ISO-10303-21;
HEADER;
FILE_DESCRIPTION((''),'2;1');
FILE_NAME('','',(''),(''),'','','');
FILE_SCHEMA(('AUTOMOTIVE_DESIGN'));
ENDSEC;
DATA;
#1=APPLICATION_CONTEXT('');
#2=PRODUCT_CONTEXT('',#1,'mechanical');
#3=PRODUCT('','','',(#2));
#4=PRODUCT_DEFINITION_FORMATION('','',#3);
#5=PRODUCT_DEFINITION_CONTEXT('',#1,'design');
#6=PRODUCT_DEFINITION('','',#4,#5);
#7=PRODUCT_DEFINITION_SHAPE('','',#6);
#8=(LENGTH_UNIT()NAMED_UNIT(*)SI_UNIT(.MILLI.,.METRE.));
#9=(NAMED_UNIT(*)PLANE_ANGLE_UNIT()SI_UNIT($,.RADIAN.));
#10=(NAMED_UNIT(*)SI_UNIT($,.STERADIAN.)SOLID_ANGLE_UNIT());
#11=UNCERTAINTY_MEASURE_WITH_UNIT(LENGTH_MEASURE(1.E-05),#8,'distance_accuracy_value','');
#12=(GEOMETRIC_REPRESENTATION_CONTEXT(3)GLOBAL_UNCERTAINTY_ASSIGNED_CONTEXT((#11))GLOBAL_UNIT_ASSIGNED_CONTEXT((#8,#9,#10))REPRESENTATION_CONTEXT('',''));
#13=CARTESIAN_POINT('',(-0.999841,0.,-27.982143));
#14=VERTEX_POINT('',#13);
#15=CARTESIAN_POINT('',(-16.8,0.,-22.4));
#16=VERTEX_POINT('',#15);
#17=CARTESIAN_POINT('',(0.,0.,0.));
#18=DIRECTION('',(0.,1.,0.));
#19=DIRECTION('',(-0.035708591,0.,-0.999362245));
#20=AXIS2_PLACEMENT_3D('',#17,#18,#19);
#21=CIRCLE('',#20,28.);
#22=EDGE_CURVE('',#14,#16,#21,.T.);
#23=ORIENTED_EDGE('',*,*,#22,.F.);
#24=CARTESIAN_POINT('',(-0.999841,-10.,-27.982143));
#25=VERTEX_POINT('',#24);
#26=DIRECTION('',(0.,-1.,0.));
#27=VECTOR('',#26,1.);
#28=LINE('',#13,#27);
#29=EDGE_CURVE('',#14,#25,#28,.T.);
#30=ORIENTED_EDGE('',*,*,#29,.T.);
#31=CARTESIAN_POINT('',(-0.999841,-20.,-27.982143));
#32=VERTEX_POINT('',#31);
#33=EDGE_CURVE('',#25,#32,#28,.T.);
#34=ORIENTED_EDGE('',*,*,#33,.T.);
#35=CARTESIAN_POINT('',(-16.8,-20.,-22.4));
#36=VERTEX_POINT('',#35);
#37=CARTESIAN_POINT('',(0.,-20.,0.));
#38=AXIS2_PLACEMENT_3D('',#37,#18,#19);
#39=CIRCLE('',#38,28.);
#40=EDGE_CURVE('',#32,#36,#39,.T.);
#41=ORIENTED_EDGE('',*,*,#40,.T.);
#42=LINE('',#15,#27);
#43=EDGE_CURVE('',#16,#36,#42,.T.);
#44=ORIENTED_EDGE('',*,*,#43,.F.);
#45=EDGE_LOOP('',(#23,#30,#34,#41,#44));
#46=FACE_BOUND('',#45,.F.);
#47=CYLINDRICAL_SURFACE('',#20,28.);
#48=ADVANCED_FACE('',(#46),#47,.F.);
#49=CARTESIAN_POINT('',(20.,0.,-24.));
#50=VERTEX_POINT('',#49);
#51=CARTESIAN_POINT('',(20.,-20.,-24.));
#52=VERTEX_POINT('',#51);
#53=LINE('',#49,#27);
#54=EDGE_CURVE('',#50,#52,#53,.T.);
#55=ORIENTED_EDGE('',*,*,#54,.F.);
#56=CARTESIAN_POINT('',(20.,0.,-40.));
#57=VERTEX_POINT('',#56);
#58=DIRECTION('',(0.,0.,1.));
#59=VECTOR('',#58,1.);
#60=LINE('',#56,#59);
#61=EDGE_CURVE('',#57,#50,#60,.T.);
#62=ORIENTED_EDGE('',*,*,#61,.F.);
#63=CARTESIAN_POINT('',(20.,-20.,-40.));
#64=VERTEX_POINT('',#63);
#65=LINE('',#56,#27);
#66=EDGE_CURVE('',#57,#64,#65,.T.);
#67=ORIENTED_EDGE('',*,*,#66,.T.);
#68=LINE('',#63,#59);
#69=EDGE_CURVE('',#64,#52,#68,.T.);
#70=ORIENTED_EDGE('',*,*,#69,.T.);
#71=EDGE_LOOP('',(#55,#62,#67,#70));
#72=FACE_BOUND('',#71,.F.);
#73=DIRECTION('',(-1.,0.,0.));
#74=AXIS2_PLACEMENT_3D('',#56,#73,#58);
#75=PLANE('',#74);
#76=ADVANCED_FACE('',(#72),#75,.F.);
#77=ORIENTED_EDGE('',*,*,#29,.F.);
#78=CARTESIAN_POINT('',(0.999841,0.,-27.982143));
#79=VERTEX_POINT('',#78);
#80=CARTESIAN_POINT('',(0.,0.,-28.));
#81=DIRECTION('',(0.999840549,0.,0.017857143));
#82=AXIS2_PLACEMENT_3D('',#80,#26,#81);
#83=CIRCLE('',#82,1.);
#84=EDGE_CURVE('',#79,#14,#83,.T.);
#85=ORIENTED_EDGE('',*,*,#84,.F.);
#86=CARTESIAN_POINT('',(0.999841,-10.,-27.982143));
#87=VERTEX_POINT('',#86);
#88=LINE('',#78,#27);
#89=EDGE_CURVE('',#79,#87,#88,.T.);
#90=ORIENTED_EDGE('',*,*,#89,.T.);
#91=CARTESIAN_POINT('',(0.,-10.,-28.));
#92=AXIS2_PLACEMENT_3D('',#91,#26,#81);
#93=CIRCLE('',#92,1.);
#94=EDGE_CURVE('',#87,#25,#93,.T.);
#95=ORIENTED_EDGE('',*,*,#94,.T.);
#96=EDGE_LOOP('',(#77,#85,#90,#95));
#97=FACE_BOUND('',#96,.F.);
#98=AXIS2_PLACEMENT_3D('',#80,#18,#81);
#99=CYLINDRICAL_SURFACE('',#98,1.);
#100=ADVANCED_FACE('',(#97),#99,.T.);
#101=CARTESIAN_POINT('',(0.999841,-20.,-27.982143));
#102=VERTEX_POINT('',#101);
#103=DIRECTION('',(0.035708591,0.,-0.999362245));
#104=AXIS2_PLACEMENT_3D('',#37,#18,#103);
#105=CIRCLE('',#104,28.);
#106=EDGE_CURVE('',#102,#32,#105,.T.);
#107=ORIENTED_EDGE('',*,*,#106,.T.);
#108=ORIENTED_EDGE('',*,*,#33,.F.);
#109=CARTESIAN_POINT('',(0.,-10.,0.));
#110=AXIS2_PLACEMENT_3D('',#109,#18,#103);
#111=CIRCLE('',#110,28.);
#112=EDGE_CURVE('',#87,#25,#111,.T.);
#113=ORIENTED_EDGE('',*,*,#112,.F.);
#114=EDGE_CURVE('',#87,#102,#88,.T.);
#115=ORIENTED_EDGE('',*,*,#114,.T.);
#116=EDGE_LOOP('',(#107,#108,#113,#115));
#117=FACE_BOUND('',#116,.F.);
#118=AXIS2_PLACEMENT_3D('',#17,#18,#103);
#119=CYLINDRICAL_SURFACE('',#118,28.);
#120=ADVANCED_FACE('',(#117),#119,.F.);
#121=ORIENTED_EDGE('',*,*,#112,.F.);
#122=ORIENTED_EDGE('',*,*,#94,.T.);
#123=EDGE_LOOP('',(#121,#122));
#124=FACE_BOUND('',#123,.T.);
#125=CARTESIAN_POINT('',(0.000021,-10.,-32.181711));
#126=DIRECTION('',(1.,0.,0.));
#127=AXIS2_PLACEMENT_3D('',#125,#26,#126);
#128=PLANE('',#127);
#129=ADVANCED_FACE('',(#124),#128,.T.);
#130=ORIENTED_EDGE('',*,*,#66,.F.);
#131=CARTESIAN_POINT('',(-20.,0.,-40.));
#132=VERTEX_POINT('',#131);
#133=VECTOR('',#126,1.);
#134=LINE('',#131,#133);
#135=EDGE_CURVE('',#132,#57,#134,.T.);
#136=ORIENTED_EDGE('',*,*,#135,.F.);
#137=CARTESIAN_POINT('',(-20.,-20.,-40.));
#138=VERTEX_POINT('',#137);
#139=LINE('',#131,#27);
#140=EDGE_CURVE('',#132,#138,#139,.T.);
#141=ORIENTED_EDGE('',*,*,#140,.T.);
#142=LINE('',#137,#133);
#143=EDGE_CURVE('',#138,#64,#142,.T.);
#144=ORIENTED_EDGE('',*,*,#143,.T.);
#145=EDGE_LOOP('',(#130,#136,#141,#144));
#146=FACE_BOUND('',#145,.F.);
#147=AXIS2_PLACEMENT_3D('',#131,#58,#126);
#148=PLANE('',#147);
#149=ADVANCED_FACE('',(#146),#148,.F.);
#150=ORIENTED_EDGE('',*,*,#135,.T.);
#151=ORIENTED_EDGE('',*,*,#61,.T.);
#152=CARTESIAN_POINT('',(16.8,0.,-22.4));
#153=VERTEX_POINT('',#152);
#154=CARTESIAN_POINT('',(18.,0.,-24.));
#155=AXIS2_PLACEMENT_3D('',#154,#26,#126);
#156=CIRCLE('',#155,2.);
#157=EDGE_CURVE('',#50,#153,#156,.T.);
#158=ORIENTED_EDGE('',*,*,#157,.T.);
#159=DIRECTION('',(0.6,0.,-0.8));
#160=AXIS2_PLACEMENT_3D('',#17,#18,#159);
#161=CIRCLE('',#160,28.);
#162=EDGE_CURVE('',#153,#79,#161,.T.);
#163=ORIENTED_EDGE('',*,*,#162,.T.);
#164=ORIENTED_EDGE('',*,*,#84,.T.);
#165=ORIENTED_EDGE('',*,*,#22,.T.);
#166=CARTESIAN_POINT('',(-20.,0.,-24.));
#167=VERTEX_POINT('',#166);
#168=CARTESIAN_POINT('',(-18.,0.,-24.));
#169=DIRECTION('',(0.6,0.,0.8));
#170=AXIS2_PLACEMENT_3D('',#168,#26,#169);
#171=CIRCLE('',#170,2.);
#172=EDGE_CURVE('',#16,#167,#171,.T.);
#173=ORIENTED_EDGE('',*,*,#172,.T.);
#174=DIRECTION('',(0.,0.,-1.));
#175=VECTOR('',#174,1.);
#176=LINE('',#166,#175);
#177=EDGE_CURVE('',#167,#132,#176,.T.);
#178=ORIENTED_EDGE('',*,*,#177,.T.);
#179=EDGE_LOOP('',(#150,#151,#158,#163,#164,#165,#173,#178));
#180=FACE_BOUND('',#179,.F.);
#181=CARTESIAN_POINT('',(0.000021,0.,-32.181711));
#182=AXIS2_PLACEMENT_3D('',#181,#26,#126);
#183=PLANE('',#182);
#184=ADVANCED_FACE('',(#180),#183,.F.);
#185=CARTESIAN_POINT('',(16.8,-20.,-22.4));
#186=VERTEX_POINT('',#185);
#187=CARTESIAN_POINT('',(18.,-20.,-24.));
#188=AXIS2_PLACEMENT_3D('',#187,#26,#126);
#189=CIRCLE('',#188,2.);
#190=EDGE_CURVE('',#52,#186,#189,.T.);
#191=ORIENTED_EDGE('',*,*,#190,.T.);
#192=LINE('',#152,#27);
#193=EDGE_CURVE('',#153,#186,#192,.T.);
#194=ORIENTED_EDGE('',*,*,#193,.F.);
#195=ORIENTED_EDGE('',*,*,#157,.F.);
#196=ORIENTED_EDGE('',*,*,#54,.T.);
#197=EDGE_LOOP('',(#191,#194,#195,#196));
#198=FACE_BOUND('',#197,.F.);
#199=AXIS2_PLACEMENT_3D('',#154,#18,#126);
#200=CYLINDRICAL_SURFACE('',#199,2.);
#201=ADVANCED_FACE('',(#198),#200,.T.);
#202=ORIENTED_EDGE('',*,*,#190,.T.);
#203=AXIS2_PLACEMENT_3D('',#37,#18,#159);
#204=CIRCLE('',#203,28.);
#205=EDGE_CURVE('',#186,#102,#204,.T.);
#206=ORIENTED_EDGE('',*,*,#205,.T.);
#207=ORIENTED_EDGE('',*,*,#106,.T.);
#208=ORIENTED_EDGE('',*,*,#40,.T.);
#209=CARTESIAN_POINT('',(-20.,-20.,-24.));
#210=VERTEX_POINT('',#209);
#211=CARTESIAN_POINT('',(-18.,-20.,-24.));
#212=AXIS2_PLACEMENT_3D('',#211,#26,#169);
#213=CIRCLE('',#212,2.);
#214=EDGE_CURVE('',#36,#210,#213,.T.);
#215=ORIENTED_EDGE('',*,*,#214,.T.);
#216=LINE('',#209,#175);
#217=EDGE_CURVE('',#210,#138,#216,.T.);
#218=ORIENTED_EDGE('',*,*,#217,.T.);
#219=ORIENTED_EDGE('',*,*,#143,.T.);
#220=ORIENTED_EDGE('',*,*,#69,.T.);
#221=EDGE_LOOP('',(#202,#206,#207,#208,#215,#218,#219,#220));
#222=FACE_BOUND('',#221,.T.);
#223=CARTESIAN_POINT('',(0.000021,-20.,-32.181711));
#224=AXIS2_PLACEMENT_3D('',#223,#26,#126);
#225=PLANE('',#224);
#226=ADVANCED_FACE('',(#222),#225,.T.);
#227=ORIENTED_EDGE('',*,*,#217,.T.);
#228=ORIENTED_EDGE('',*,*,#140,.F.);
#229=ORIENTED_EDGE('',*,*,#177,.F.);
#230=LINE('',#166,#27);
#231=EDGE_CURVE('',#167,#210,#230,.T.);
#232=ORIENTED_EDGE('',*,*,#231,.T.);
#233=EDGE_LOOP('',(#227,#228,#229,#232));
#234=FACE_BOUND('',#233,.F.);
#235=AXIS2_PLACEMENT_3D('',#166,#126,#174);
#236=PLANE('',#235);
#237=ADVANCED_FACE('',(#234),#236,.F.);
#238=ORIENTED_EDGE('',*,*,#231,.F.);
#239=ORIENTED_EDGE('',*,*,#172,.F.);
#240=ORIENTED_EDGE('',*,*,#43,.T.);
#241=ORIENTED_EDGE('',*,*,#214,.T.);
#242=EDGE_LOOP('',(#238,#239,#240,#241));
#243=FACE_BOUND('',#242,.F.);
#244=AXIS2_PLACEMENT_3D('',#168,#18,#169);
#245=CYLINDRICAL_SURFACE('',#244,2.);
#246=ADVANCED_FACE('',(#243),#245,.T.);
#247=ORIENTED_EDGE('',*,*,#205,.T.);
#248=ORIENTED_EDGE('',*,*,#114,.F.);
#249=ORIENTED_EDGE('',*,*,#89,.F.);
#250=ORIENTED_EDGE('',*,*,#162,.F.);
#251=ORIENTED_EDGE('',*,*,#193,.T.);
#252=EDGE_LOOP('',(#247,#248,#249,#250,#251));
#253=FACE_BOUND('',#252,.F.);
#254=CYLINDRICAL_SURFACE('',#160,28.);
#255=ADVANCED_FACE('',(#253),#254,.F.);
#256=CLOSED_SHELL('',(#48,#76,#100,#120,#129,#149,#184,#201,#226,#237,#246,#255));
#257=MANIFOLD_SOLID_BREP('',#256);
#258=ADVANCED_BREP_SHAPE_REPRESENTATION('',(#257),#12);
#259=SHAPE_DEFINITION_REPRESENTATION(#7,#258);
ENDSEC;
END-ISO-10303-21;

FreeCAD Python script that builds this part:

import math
import FreeCAD as App
import Part
import Sketcher

doc = App.newDocument("Part")
body = doc.addObject("PartDesign::Body", "Body")

sketch1 = body.newObject("Sketcher::SketchObject", "Sketch")
sketch1.AttachmentSupport = (doc.getObject("XZ_Plane"), [""])
sketch1.MapMode = "FlatFace"
sketch1.addGeometry([
    Part.ArcOfCircle(Part.Circle(App.Vector(0, 0, 0), App.Vector(0, 0, 1), 28), math.radians(-127), math.radians(-92)),
    Part.ArcOfCircle(Part.Circle(App.Vector(-18, -24, 0), App.Vector(0, 0, 1), 2), math.radians(53), math.radians(180)),
    Part.LineSegment(App.Vector(-20, -24, 0), App.Vector(-20, -40, 0)),
    Part.LineSegment(App.Vector(-20, -40, 0), App.Vector(20, -40, 0)),
    Part.LineSegment(App.Vector(20, -40, 0), App.Vector(20, -24, 0)),
    Part.ArcOfCircle(Part.Circle(App.Vector(18, -24, 0), App.Vector(0, 0, 1), 2), math.radians(0), math.radians(127)),
    Part.ArcOfCircle(Part.Circle(App.Vector(0, 0, 0), App.Vector(0, 0, 1), 28), math.radians(-88), math.radians(-53)),
    Part.ArcOfCircle(Part.Circle(App.Vector(0, 0, 0), App.Vector(0, 0, 1), 28), math.radians(-92.05), math.radians(-87.95)),
], False)
sketch1.addConstraint([
    Sketcher.Constraint("Tangent", 0, 1, 1, 1),
    Sketcher.Constraint("Tangent", 1, 2, 2, 1),
    Sketcher.Constraint("Coincident", 2, 2, 3, 1),
    Sketcher.Constraint("Coincident", 3, 2, 4, 1),
    Sketcher.Constraint("Tangent", 4, 2, 5, 1),
    Sketcher.Constraint("Tangent", 5, 2, 6, 2),
    Sketcher.Constraint("Tangent", 6, 1, 7, 2),
    Sketcher.Constraint("Tangent", 7, 1, 0, 2),
    Sketcher.Constraint("Vertical", 2),
    Sketcher.Constraint("Horizontal", 3),
    Sketcher.Constraint("Vertical", 4),
    Sketcher.Constraint("Coincident", 0, 3, -1, 1),
    Sketcher.Constraint("Coincident", 6, 3, -1, 1),
    Sketcher.Constraint("Equal", 1, 5),
    Sketcher.Constraint("Horizontal", 1, 3, 5, 3),
    Sketcher.Constraint("Horizontal", 6, 1, 7, 1),
    Sketcher.Constraint("Radius", 0, 28.0),
    Sketcher.Constraint("Radius", 1, 2.0),
    Sketcher.Constraint("DistanceX", 3, 1, 3, 2, 40.0),
    Sketcher.Constraint("DistanceY", 2, 2, 2, 1, 16.0),
    Sketcher.Constraint("DistanceX", -1, 1, 6, 1, 0.999841),
])
pad1 = body.newObject("PartDesign::Pad", "Pad")
pad1.Profile = sketch1
pad1.Length = 20

sketch2 = body.newObject("Sketcher::SketchObject", "Sketch001")
sketch2.AttachmentSupport = (doc.getObject("XZ_Plane"), [""])
sketch2.MapMode = "FlatFace"
sketch2.addGeometry([
    Part.ArcOfCircle(Part.Circle(App.Vector(0, 0, 0), App.Vector(0, 0, 1), 28), math.radians(-127), math.radians(-92)),
    Part.ArcOfCircle(Part.Circle(App.Vector(-18, -24, 0), App.Vector(0, 0, 1), 2), math.radians(53), math.radians(180)),
    Part.LineSegment(App.Vector(-20, -24, 0), App.Vector(-20, -40, 0)),
    Part.LineSegment(App.Vector(-20, -40, 0), App.Vector(20, -40, 0)),
    Part.LineSegment(App.Vector(20, -40, 0), App.Vector(20, -24, 0)),
    Part.ArcOfCircle(Part.Circle(App.Vector(18, -24, 0), App.Vector(0, 0, 1), 2), math.radians(0), math.radians(127)),
    Part.ArcOfCircle(Part.Circle(App.Vector(0, 0, 0), App.Vector(0, 0, 1), 28), math.radians(-88), math.radians(-53)),
    Part.ArcOfCircle(Part.Circle(App.Vector(0, -28, 0), App.Vector(0, 0, 1), 1), math.radians(1), math.radians(179)),
], False)
sketch2.addConstraint([
    Sketcher.Constraint("Tangent", 0, 1, 1, 1),
    Sketcher.Constraint("Tangent", 1, 2, 2, 1),
    Sketcher.Constraint("Coincident", 2, 2, 3, 1),
    Sketcher.Constraint("Coincident", 3, 2, 4, 1),
    Sketcher.Constraint("Tangent", 4, 2, 5, 1),
    Sketcher.Constraint("Tangent", 5, 2, 6, 2),
    Sketcher.Constraint("Coincident", 6, 1, 7, 1),
    Sketcher.Constraint("Coincident", 7, 2, 0, 2),
    Sketcher.Constraint("Vertical", 2),
    Sketcher.Constraint("Horizontal", 3),
    Sketcher.Constraint("Vertical", 4),
    Sketcher.Constraint("Coincident", 0, 3, -1, 1),
    Sketcher.Constraint("Coincident", 6, 3, -1, 1),
    Sketcher.Constraint("Equal", 1, 5),
    Sketcher.Constraint("Equal", 0, 6),
    Sketcher.Constraint("PointOnObject", 7, 3, -2),
    Sketcher.Constraint("Horizontal", 1, 3, 5, 3),
    Sketcher.Constraint("Radius", 0, 28.0),
    Sketcher.Constraint("Radius", 1, 2.0),
    Sketcher.Constraint("Radius", 7, 1.0),
    Sketcher.Constraint("DistanceX", 3, 1, 3, 2, 40.0),
    Sketcher.Constraint("DistanceY", 2, 2, 2, 1, 16.0),
    Sketcher.Constraint("DistanceY", 7, 3, -1, 1, 28.0),
])
pad2 = body.newObject("PartDesign::Pad", "Pad001")
pad2.Profile = sketch2
pad2.Length = 10

doc.recompute()
